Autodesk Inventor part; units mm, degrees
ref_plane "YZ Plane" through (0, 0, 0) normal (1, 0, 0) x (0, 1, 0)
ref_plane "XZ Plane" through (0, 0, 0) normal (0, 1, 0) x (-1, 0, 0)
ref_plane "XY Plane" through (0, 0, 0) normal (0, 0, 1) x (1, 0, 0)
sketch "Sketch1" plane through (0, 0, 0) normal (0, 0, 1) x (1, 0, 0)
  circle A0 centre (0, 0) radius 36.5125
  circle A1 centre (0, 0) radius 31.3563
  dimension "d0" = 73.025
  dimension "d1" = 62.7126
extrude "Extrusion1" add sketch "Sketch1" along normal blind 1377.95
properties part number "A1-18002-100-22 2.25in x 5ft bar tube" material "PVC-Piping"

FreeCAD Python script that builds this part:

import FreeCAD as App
import Part
import Sketcher

V = App.Vector
Q = App.Units.Quantity

doc = App.newDocument("Part")
body = doc.addObject("PartDesign::Body", "Body")

# Sketch on XY plane
sketch1 = body.newObject("Sketcher::SketchObject", "Sketch")
sketch1.AttachmentSupport = (doc.getObject("XY_Plane"), [""])
sketch1.MapMode = "FlatFace"
sketch1.addGeometry([
    Part.Circle(V(0, 0, 0), V(0, 0, 1), 37),
    Part.Circle(V(0, 0, 0), V(0, 0, 1), 31),
], False)
sketch1.addConstraint([
    Sketcher.Constraint("Coincident", 0, 3, -1, 1),
    Sketcher.Constraint("Coincident", 1, 3, -1, 1),
    Sketcher.Constraint("Diameter", 0, Q("2.875 in")),
    Sketcher.Constraint("Diameter", 1, Q("2.469 in")),
])
pad1 = body.newObject("PartDesign::Pad", "Pad")
pad1.Profile = sketch1
pad1.Length = Q("54.25 in")

doc.recompute()
